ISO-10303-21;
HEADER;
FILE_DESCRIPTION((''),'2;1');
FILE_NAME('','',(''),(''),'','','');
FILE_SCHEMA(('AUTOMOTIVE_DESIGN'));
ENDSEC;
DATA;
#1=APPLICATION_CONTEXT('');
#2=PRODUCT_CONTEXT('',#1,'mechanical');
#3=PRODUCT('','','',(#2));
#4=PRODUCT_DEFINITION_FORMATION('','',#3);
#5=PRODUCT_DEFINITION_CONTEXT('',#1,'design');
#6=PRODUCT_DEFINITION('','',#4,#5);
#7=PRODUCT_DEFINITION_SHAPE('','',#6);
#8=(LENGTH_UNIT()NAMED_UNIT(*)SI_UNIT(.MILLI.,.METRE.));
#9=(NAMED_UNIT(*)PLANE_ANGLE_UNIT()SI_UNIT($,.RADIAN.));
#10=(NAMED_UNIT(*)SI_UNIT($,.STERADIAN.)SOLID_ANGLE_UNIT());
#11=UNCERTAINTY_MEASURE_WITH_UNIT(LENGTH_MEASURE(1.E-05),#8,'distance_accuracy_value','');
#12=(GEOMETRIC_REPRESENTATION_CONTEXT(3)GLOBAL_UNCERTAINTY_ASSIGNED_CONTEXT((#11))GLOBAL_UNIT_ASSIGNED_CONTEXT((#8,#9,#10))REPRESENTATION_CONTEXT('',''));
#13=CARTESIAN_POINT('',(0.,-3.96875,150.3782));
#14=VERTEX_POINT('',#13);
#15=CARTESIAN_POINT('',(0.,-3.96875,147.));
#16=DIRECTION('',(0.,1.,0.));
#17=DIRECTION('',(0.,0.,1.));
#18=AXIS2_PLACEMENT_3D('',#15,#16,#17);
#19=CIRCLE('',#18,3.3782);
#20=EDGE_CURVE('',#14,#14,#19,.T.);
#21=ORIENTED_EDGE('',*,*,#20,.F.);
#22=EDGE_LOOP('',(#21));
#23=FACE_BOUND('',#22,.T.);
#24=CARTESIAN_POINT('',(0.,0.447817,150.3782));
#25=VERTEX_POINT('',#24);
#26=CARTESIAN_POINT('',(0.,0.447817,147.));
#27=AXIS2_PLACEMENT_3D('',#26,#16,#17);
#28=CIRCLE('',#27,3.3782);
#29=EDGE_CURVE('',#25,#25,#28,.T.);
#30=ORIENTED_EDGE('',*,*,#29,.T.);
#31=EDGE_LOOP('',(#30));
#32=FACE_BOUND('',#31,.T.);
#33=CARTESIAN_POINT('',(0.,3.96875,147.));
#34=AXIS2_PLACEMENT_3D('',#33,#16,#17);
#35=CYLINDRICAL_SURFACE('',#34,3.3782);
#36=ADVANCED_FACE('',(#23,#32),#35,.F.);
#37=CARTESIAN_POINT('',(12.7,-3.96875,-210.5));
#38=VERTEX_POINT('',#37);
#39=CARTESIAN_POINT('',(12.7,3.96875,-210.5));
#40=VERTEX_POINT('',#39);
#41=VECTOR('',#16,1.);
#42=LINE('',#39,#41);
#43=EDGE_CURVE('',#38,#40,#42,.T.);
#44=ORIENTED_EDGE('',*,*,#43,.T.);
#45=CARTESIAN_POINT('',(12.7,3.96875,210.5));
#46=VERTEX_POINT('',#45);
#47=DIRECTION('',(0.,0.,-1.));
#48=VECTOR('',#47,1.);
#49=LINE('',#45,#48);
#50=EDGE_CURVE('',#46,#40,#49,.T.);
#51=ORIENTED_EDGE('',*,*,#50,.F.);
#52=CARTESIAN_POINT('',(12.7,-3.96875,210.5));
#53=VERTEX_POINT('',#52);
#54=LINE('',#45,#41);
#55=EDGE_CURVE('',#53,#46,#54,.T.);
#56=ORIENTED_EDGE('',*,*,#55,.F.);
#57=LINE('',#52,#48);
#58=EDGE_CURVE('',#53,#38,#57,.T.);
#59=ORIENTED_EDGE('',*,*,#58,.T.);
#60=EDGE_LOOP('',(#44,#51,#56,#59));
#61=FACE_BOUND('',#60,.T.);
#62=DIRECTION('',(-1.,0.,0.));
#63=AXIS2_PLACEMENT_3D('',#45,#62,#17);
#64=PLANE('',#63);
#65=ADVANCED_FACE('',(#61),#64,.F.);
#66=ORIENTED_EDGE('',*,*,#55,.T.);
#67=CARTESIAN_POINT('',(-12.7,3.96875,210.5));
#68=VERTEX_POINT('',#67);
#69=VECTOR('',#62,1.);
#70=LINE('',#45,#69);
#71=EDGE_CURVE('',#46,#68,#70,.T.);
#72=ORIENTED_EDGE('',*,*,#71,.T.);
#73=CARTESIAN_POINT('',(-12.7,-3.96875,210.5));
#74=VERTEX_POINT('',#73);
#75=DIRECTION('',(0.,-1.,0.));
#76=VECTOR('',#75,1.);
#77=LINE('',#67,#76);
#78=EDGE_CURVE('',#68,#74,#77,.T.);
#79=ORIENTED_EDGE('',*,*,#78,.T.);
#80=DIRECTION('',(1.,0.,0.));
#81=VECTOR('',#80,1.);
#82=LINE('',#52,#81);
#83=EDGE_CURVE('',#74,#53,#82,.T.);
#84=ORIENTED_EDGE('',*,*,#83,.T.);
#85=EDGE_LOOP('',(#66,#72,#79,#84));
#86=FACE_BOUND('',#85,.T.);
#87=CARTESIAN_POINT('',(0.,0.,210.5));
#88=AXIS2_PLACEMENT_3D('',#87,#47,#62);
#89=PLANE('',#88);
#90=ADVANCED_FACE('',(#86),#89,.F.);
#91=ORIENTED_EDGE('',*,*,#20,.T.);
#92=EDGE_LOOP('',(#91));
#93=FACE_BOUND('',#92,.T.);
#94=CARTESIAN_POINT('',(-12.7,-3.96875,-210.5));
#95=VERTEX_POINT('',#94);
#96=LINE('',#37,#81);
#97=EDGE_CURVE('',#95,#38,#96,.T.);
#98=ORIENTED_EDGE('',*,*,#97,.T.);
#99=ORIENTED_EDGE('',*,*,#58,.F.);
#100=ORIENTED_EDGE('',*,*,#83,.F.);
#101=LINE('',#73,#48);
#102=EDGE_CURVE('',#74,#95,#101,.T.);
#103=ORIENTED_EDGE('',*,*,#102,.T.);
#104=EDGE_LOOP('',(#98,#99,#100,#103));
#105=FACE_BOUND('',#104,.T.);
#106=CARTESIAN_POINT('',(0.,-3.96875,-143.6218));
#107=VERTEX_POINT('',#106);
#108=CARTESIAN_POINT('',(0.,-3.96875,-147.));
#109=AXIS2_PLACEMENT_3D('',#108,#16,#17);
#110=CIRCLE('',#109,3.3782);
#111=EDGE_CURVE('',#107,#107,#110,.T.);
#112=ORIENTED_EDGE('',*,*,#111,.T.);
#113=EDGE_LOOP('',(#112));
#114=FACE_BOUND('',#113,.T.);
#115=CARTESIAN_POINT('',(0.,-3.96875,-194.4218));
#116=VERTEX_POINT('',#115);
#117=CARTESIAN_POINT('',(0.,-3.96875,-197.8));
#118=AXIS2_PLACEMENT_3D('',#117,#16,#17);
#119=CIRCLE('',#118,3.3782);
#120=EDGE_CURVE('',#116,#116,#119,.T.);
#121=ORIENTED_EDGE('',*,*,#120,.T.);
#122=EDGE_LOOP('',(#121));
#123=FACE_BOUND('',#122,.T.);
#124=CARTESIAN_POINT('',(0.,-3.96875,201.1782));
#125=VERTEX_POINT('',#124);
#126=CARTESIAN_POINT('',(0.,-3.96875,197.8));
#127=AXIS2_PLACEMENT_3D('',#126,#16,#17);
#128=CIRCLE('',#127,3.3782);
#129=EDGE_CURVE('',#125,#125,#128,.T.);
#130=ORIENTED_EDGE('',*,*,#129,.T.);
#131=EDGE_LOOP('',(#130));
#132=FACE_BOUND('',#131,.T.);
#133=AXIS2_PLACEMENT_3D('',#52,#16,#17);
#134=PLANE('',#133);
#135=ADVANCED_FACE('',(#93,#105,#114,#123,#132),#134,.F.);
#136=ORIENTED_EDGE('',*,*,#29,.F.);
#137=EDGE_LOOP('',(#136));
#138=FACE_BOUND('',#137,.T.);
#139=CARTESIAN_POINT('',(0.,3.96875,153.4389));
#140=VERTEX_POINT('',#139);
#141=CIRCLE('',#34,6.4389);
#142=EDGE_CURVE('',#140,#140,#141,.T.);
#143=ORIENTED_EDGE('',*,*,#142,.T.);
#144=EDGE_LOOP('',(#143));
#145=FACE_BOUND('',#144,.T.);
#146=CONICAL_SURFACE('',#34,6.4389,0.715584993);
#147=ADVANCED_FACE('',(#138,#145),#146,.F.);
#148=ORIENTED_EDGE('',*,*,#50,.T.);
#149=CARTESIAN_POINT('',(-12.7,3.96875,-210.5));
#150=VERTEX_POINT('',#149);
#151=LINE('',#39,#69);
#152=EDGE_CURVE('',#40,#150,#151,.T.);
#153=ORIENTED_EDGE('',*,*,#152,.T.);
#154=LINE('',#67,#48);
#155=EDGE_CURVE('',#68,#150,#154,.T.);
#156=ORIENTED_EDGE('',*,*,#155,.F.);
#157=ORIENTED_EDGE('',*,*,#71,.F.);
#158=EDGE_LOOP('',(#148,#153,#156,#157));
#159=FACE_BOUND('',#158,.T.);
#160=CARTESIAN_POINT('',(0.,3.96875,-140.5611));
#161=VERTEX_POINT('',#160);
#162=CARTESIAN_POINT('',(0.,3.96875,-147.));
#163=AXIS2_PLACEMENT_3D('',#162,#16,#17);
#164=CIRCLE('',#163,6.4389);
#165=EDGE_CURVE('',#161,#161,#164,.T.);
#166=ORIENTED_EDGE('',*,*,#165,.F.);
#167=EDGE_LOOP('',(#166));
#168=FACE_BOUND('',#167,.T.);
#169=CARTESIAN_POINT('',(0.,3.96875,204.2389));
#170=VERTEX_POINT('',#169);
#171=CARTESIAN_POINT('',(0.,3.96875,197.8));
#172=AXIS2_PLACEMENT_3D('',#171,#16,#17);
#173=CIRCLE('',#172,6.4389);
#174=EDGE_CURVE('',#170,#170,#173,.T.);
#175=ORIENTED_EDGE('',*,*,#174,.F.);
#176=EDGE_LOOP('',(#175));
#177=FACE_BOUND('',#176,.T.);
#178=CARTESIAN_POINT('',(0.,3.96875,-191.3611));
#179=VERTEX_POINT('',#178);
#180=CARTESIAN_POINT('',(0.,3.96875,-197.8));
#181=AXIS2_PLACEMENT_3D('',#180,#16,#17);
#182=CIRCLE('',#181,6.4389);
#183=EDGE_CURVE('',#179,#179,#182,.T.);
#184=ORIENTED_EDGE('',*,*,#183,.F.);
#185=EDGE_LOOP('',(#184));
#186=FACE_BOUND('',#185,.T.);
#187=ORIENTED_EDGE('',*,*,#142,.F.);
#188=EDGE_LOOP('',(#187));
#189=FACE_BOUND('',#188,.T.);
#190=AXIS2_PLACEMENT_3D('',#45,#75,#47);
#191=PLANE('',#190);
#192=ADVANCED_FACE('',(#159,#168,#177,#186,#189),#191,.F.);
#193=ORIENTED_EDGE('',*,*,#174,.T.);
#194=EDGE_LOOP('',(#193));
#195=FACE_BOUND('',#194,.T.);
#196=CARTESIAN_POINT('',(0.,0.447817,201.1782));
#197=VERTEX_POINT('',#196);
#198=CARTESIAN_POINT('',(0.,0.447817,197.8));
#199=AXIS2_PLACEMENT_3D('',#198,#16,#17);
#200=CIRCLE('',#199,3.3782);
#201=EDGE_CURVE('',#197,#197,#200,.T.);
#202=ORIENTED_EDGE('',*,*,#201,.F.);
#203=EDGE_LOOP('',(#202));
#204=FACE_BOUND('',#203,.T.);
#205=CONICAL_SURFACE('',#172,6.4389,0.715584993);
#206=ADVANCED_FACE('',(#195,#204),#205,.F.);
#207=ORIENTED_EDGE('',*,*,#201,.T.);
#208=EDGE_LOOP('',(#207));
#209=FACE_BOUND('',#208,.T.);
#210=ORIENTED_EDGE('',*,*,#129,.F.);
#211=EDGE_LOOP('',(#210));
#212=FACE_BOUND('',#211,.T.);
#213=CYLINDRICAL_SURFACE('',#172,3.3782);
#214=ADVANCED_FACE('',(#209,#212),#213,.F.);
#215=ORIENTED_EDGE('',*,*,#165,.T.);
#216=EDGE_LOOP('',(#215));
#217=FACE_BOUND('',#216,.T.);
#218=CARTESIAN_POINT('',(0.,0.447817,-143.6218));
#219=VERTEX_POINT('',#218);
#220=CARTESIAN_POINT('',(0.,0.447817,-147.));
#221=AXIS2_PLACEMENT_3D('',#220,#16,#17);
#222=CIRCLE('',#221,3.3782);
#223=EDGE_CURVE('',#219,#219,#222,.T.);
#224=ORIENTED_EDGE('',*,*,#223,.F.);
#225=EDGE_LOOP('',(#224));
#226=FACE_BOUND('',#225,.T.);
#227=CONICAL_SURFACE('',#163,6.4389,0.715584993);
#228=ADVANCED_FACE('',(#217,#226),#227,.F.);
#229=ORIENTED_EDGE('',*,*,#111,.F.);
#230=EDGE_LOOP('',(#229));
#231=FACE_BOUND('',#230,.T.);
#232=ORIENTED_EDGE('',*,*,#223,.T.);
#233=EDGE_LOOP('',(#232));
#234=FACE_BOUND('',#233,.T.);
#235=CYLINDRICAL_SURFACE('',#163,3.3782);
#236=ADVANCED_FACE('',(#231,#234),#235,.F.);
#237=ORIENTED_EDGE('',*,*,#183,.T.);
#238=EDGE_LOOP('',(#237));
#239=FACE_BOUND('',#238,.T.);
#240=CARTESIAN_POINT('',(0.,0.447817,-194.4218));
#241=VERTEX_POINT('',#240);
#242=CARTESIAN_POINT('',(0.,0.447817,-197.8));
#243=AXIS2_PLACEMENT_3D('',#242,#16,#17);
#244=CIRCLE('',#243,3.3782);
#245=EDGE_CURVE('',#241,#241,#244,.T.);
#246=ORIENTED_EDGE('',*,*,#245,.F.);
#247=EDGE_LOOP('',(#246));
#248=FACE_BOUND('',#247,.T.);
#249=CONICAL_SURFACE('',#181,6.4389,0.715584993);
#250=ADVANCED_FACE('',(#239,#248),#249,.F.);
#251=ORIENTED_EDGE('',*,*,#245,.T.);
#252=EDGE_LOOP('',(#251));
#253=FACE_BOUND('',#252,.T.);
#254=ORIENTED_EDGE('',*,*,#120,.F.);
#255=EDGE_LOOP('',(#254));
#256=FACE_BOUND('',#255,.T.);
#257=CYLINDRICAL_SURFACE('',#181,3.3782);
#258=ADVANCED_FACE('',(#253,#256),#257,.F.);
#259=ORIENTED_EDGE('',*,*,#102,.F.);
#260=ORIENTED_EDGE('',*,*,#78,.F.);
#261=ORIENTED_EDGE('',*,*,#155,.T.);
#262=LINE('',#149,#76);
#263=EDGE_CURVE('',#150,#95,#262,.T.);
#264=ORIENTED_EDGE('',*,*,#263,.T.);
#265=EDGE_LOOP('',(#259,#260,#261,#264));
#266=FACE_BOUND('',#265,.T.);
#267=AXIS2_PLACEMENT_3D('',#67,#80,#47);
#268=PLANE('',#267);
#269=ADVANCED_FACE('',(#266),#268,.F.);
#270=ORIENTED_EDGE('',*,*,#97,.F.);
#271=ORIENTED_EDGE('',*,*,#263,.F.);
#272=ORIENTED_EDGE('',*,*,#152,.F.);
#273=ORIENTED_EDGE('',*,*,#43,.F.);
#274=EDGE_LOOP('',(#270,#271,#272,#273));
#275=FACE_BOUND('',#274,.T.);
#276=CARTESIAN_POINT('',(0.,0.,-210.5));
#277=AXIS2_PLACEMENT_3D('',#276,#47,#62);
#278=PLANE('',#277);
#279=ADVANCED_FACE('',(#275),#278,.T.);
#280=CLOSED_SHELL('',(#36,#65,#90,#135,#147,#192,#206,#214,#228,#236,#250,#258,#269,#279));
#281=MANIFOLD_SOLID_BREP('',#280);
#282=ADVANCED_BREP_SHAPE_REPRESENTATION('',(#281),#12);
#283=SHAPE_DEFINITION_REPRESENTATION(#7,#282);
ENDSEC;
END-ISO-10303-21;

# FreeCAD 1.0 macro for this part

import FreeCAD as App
import Part
import Sketcher

V = App.Vector
Q = App.Units.Quantity


def add_polygon(sketch, points):
    """Adds a closed chain of lines whose ends are joined by coincident constraints."""
    first, n = sketch.GeometryCount, len(points)
    for a, b in zip(points, points[1:] + points[:1]):
        sketch.addGeometry(Part.LineSegment(App.Vector(*a, 0), App.Vector(*b, 0)), False)
    for i in range(n):
        sketch.addConstraint(Sketcher.Constraint("Coincident", first + i, 2, first + (i + 1) % n, 1))

doc = App.newDocument("Part")
body = doc.addObject("PartDesign::Body", "Body")

# Sketch on XY plane
sketch1 = doc.addObject("Sketcher::SketchObject", "Sketch")
body.addObject(sketch1)
sketch1.AttachmentSupport = (doc.XY_Plane, [""])
sketch1.MapMode = "FlatFace"
add_polygon(sketch1, [(-13, 4), (-13, -4), (13, -4), (13, 4)])  # lines 0-3
sketch1.addConstraint([
    Sketcher.Constraint("Vertical", 0),
    Sketcher.Constraint("Horizontal", 1),
    Sketcher.Constraint("Vertical", 2),
    Sketcher.Constraint("Horizontal", 3),
    Sketcher.Constraint("Symmetric", 0, 2, 2, 2, -1, 1),
    Sketcher.Constraint("DistanceX", 1, 1, 1, 2, Q("1 in")),
    Sketcher.Constraint("DistanceY", 0, 2, 0, 1, Q("0.3125 in")),
])
pad1 = doc.addObject("PartDesign::Pad", "Pad")
body.addObject(pad1)
pad1.Profile = sketch1
pad1.Length = 421
pad1.Midplane = True

# Sketch on XZ plane
sketch2 = doc.addObject("Sketcher::SketchObject", "Sketch001")
body.addObject(sketch2)
sketch2.AttachmentSupport = (doc.XZ_Plane, [""])
sketch2.MapMode = "FlatFace"
sketch2.AttachmentOffset = App.Placement(V(0, 0, -0.15625 * 25.4), App.Rotation())
sketch2.addGeometry([
    Part.Circle(V(0, -197.8, 0), V(0, 0, 1), 3.4),
    Part.Circle(V(0, 197.8, 0), V(0, 0, 1), 3.4),
    Part.Circle(V(0, -147, 0), V(0, 0, 1), 3.4),
    Part.Circle(V(0, 147, 0), V(0, 0, 1), 3.4),
], False)
sketch2.addConstraint([
    Sketcher.Constraint("Equal", 0, 1),
    Sketcher.Constraint("Equal", 1, 2),
    Sketcher.Constraint("Equal", 2, 3),
    Sketcher.Constraint("Symmetric", 0, 3, 1, 3, -1, 1),
    Sketcher.Constraint("Symmetric", 2, 3, 3, 3, -1, 1),
    Sketcher.Constraint("PointOnObject", 0, 3, -2),
    Sketcher.Constraint("PointOnObject", 2, 3, -2),
    Sketcher.Constraint("Diameter", 0, Q("0.266 in")),
    Sketcher.Constraint("DistanceY", 0, 3, 2, 3, Q("2 in")),
    Sketcher.Constraint("DistanceY", 0, 3, -1, 1, 197.8),
])
doc.recompute()
hole = doc.addObject("PartDesign::Hole", "Hole")
body.addObject(hole)
hole.Profile = sketch2
hole.ThreadType = "None"
hole.Diameter = Q("0.266 in")
hole.DepthType = "ThroughAll"
hole.HoleCutType = "Countersink"
hole.HoleCutDiameter = Q("0.507 in")
hole.HoleCutCountersinkAngle = 82
hole.Reversed = True

doc.recompute()
